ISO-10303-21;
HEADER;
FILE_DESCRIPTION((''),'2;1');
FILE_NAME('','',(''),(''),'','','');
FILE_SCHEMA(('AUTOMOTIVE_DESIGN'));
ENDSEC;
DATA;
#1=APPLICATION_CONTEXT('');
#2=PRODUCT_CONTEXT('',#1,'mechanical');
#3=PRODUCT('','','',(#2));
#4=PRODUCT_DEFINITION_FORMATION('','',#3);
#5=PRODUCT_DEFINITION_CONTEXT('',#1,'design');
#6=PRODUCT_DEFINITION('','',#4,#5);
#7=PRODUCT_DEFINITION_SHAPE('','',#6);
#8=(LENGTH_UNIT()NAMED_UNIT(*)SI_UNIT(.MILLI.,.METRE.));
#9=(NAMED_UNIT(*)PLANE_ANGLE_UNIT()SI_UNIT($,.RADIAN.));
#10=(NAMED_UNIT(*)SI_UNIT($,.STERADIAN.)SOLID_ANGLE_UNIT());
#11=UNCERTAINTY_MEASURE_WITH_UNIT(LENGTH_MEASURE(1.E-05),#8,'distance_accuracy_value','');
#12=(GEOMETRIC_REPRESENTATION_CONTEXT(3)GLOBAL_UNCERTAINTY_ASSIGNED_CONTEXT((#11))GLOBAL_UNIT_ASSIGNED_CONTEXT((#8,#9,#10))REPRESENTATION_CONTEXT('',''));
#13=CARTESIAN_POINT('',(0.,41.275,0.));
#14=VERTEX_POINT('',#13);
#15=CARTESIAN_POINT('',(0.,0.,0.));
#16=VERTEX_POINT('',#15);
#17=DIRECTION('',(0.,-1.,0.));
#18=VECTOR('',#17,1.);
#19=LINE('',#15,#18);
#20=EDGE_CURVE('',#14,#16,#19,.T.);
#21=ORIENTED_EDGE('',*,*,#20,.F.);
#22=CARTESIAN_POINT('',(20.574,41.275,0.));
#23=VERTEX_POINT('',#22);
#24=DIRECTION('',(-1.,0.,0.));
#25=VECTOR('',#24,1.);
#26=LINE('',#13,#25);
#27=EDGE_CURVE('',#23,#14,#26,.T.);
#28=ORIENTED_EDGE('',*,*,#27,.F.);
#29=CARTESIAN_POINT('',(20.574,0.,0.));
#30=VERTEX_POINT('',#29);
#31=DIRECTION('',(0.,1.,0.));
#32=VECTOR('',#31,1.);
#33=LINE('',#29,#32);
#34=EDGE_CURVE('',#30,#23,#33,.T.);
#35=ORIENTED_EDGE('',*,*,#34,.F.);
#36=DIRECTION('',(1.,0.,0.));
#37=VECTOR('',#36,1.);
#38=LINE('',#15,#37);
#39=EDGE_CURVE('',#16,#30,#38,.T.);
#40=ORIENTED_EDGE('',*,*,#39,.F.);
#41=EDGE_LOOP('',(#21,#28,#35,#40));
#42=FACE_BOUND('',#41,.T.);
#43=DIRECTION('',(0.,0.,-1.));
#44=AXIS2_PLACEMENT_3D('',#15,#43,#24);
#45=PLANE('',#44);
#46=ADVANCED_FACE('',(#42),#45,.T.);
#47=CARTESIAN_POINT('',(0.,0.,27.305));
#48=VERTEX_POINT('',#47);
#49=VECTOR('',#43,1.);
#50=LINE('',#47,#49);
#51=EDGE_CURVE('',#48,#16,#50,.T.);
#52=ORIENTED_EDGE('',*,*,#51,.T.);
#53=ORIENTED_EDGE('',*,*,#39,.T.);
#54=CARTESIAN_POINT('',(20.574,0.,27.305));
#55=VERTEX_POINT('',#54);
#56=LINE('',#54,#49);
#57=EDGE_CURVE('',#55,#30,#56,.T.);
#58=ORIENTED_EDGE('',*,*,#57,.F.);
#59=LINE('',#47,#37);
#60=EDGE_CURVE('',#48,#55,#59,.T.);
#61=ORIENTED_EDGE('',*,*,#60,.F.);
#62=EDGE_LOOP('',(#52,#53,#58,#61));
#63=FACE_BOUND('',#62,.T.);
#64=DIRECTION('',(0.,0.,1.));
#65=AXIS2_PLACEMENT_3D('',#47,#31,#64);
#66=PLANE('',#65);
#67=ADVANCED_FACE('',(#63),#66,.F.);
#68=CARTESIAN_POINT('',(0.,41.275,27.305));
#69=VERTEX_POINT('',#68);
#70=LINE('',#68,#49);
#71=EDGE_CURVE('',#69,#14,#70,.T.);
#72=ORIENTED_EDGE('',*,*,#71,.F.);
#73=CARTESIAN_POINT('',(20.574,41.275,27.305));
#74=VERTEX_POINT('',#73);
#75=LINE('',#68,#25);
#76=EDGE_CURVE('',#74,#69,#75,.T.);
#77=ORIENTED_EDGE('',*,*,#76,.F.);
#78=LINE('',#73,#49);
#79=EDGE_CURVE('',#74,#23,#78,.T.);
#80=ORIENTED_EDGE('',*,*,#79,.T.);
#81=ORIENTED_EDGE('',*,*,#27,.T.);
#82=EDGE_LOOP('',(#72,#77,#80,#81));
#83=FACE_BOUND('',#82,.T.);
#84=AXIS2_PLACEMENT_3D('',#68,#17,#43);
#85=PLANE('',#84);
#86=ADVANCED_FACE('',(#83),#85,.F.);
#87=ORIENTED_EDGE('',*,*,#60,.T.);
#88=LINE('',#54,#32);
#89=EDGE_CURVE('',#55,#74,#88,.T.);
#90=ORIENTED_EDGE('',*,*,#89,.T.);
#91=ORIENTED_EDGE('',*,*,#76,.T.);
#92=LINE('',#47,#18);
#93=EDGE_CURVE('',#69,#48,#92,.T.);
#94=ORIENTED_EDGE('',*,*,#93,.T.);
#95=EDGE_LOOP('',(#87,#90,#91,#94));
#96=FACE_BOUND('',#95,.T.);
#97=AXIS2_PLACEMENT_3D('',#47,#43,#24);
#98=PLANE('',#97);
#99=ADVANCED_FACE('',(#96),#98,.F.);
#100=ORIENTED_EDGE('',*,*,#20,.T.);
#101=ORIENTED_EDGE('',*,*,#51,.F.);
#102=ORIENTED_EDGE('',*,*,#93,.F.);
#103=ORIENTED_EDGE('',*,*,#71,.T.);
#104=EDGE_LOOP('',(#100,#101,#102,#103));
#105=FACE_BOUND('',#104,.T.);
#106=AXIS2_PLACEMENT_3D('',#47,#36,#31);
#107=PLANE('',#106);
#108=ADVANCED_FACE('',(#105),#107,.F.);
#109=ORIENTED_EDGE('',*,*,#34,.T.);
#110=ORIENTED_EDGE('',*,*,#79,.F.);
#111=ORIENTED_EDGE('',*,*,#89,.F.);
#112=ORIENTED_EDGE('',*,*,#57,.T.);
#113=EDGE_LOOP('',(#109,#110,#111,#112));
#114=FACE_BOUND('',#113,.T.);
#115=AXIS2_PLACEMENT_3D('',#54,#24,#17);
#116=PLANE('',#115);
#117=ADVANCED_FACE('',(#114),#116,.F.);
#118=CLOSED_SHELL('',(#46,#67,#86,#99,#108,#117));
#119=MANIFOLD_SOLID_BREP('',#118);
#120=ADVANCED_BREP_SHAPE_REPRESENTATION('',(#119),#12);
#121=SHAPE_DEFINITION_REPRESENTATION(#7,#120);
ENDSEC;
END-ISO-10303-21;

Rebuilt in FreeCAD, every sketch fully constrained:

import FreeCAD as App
import Part
import Sketcher
from FreeCAD import Vector
Q = App.Units.Quantity

doc = App.newDocument("Part")
body = doc.addObject("PartDesign::Body", "Body")

sketch1 = body.newObject("Sketcher::SketchObject", "Sketch")
sketch1.AttachmentSupport = (doc.getObject("XY_Plane"), [""])
sketch1.MapMode = "FlatFace"
sketch1.addGeometry(Part.LineSegment(Vector(0, 41, 0), Vector(0, 0, 0)), False)
sketch1.addGeometry(Part.LineSegment(Vector(0, 0, 0), Vector(21, 0, 0)), False)
sketch1.addGeometry(Part.LineSegment(Vector(21, 0, 0), Vector(21, 41, 0)), False)
sketch1.addGeometry(Part.LineSegment(Vector(21, 41, 0), Vector(0, 41, 0)), False)
sketch1.addConstraint(Sketcher.Constraint("Coincident", 0, 2, 1, 1))
sketch1.addConstraint(Sketcher.Constraint("Coincident", 1, 2, 2, 1))
sketch1.addConstraint(Sketcher.Constraint("Coincident", 2, 2, 3, 1))
sketch1.addConstraint(Sketcher.Constraint("Coincident", 3, 2, 0, 1))
sketch1.addConstraint(Sketcher.Constraint("Vertical", 0))
sketch1.addConstraint(Sketcher.Constraint("Horizontal", 1))
sketch1.addConstraint(Sketcher.Constraint("Vertical", 2))
sketch1.addConstraint(Sketcher.Constraint("Horizontal", 3))
sketch1.addConstraint(Sketcher.Constraint("Coincident", 0, 2, -1, 1))
sketch1.addConstraint(Sketcher.Constraint("DistanceX", 1, 1, 1, 2, Q("0.81 in")))
sketch1.addConstraint(Sketcher.Constraint("DistanceY", 0, 2, 0, 1, Q("1.625 in")))
pad1 = body.newObject("PartDesign::Pad", "Pad")
pad1.Profile = sketch1
pad1.Length = Q("1.075 in")

doc.recompute()
